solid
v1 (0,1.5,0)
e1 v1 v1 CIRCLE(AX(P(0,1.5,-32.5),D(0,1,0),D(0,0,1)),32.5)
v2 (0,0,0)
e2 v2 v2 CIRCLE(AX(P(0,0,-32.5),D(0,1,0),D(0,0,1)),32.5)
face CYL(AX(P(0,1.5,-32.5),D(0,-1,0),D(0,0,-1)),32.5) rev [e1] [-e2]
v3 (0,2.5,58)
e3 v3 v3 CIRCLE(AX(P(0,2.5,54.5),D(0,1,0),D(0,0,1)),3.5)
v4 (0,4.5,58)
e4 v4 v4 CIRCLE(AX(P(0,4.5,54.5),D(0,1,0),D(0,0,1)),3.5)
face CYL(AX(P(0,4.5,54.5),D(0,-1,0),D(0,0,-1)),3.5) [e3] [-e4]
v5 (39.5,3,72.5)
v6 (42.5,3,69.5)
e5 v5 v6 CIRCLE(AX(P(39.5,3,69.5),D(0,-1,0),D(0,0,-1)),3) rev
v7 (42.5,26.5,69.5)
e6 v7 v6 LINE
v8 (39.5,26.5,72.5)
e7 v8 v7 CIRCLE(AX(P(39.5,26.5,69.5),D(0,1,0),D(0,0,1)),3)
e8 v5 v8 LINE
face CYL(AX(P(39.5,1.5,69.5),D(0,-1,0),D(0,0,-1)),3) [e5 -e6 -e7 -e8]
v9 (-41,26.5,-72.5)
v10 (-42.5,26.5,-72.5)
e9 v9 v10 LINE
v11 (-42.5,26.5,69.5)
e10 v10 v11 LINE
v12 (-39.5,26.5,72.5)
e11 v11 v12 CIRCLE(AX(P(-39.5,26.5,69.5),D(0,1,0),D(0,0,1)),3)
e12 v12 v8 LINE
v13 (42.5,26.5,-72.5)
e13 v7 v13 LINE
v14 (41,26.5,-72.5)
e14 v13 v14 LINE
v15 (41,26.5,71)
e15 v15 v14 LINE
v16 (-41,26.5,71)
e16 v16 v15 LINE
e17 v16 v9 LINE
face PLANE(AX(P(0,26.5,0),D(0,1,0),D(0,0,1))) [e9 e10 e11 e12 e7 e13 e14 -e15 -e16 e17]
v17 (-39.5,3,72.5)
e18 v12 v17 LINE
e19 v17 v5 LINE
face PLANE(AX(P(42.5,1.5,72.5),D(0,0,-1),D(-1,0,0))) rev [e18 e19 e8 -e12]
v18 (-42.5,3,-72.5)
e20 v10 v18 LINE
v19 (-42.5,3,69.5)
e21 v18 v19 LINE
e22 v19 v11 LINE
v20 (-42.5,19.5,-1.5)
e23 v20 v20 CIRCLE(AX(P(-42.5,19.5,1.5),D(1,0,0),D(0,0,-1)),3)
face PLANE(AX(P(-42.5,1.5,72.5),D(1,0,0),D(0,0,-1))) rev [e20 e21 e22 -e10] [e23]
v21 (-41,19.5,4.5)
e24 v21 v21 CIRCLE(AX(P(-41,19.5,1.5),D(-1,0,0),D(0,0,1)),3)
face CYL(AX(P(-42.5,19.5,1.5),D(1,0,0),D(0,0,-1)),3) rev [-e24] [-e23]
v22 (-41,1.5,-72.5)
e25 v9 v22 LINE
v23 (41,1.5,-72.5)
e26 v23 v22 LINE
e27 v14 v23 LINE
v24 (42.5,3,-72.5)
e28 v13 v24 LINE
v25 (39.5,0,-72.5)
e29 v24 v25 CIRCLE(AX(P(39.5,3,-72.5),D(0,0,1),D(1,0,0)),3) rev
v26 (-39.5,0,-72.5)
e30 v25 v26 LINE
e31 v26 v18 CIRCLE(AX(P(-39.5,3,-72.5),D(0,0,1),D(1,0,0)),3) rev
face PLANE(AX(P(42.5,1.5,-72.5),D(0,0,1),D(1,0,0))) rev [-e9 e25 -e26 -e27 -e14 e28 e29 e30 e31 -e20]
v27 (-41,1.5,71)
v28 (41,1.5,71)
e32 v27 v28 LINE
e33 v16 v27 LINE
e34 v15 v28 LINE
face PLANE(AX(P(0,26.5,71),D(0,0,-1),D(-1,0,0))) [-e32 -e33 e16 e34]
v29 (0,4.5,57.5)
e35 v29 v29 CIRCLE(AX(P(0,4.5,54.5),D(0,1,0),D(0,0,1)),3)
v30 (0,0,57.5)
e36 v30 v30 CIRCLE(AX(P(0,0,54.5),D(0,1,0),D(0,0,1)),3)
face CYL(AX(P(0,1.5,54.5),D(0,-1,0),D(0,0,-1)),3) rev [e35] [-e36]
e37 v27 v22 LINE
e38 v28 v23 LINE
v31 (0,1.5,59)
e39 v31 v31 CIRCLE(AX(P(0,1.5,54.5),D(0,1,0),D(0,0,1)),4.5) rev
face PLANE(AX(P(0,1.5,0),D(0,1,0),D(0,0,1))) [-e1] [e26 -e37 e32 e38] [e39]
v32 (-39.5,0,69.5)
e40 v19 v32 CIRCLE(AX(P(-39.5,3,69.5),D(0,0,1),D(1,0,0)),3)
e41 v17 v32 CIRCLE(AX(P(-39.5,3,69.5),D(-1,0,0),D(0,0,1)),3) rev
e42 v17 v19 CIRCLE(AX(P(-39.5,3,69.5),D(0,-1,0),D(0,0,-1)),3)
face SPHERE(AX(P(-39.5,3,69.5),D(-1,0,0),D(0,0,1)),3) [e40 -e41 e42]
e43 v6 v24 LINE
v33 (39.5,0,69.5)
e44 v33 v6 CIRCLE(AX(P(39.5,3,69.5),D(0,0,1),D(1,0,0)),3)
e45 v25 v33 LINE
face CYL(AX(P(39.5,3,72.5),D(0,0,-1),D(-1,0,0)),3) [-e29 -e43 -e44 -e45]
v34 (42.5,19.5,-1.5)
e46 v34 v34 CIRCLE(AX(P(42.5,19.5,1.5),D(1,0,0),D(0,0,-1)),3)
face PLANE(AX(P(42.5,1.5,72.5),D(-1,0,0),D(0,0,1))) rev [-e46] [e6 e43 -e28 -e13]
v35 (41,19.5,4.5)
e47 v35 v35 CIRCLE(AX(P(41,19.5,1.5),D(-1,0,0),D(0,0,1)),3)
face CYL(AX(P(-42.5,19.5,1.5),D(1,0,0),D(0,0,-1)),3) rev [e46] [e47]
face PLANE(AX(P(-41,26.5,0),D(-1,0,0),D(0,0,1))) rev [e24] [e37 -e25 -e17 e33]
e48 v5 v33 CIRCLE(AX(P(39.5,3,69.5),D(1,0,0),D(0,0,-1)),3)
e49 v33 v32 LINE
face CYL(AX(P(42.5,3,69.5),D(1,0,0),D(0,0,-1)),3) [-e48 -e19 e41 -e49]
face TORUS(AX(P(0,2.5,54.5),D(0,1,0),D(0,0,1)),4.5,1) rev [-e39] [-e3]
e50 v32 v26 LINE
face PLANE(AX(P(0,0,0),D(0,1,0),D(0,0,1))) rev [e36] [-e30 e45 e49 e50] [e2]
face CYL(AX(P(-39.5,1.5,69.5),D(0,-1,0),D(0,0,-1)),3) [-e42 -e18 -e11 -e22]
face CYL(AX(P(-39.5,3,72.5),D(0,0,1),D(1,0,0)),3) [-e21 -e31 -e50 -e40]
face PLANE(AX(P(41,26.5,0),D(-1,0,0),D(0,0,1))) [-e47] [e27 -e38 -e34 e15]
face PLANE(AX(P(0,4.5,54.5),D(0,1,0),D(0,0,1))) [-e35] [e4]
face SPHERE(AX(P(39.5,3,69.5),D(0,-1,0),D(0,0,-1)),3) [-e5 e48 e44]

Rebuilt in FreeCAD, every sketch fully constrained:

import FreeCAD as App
import Part
import Sketcher
Q = App.Units.Quantity


def edges_at(feature, points):
    """Names of the edges that pass closest to the given points."""
    edges = feature.Shape.Edges
    near = lambda p: min(range(len(edges)), key=lambda i: edges[i].distToShape(Part.Vertex(*p))[0])
    return sorted({f"Edge{near(p) + 1}" for p in points})

doc = App.newDocument("Part")
body = doc.addObject("PartDesign::Body", "Body")

# Sketch on XZ plane
sketch1 = body.newObject("Sketcher::SketchObject", "Sketch")
sketch1.AttachmentSupport = (doc.getObject("XZ_Plane"), [""])
sketch1.MapMode = "FlatFace"
sketch1.addGeometry(Part.LineSegment(App.Vector(-42.5, -72.5, 0), App.Vector(-42.5, 72.5, 0)), False)
sketch1.addGeometry(Part.LineSegment(App.Vector(-42.5, 72.5, 0), App.Vector(42.5, 72.5, 0)), False)
sketch1.addGeometry(Part.LineSegment(App.Vector(42.5, 72.5, 0), App.Vector(42.5, -72.5, 0)), False)
sketch1.addGeometry(Part.LineSegment(App.Vector(42.5, -72.5, 0), App.Vector(-42.5, -72.5, 0)), False)
sketch1.addGeometry(Part.Circle(App.Vector(0, 54.5, 0), App.Vector(0, 0, 1), 3), False)
sketch1.addGeometry(Part.Circle(App.Vector(0, -32.5, 0), App.Vector(0, 0, 1), 32.5), False)
sketch1.addConstraint(Sketcher.Constraint("Coincident", 0, 2, 1, 1))
sketch1.addConstraint(Sketcher.Constraint("Coincident", 1, 2, 2, 1))
sketch1.addConstraint(Sketcher.Constraint("Coincident", 2, 2, 3, 1))
sketch1.addConstraint(Sketcher.Constraint("Coincident", 3, 2, 0, 1))
sketch1.addConstraint(Sketcher.Constraint("Vertical", 0))
sketch1.addConstraint(Sketcher.Constraint("Horizontal", 1))
sketch1.addConstraint(Sketcher.Constraint("Vertical", 2))
sketch1.addConstraint(Sketcher.Constraint("Horizontal", 3))
sketch1.addConstraint(Sketcher.Constraint("Symmetric", 0, 2, 2, 2, -1, 1))
sketch1.addConstraint(Sketcher.Constraint("PointOnObject", 4, 3, -2))
sketch1.addConstraint(Sketcher.Constraint("PointOnObject", 5, 3, -2))
sketch1.addConstraint(Sketcher.Constraint("Diameter", 4, Q("6 mm")))
sketch1.addConstraint(Sketcher.Constraint("Diameter", 5, Q("65 mm")))
sketch1.addConstraint(Sketcher.Constraint("DistanceX", 1, 1, 1, 2, Q("85 mm")))
sketch1.addConstraint(Sketcher.Constraint("DistanceY", 0, 1, 0, 2, Q("145 mm")))
sketch1.addConstraint(Sketcher.Constraint("DistanceY", 5, 3, 4, 3, Q("87 mm")))
sketch1.addConstraint(Sketcher.Constraint("DistanceY", 4, 3, 0, 2, Q("18 mm")))
pad1 = body.newObject("PartDesign::Pad", "Pad")
pad1.Profile = sketch1
pad1.Length = 1.5
pad1.Reversed = True

# Sketch on XZ plane
sketch2 = body.newObject("Sketcher::SketchObject", "Sketch001")
sketch2.AttachmentSupport = (doc.getObject("XZ_Plane"), [""])
sketch2.MapMode = "FlatFace"
sketch2.AttachmentOffset = App.Placement(App.Vector(0, 0, -1.5), App.Rotation())
sketch2.addGeometry(Part.LineSegment(App.Vector(-42.5, -72.5, 0), App.Vector(-42.5, 72.5, 0)), False)
sketch2.addGeometry(Part.LineSegment(App.Vector(-42.5, 72.5, 0), App.Vector(42.5, 72.5, 0)), False)
sketch2.addGeometry(Part.LineSegment(App.Vector(42.5, 72.5, 0), App.Vector(42.5, -72.5, 0)), False)
sketch2.addGeometry(Part.LineSegment(App.Vector(42.5, -72.5, 0), App.Vector(41, -72.5, 0)), False)
sketch2.addGeometry(Part.LineSegment(App.Vector(41, -72.5, 0), App.Vector(41, 71, 0)), False)
sketch2.addGeometry(Part.LineSegment(App.Vector(41, 71, 0), App.Vector(-41, 71, 0)), False)
sketch2.addGeometry(Part.LineSegment(App.Vector(-41, 71, 0), App.Vector(-41, -72.5, 0)), False)
sketch2.addGeometry(Part.LineSegment(App.Vector(-41, -72.5, 0), App.Vector(-42.5, -72.5, 0)), False)
sketch2.addConstraint(Sketcher.Constraint("Coincident", 0, 2, 1, 1))
sketch2.addConstraint(Sketcher.Constraint("Coincident", 1, 2, 2, 1))
sketch2.addConstraint(Sketcher.Constraint("Coincident", 2, 2, 3, 1))
sketch2.addConstraint(Sketcher.Constraint("Coincident", 3, 2, 4, 1))
sketch2.addConstraint(Sketcher.Constraint("Coincident", 4, 2, 5, 1))
sketch2.addConstraint(Sketcher.Constraint("Coincident", 5, 2, 6, 1))
sketch2.addConstraint(Sketcher.Constraint("Coincident", 6, 2, 7, 1))
sketch2.addConstraint(Sketcher.Constraint("Coincident", 7, 2, 0, 1))
sketch2.addConstraint(Sketcher.Constraint("Vertical", 0))
sketch2.addConstraint(Sketcher.Constraint("Horizontal", 1))
sketch2.addConstraint(Sketcher.Constraint("Vertical", 2))
sketch2.addConstraint(Sketcher.Constraint("Horizontal", 3))
sketch2.addConstraint(Sketcher.Constraint("Vertical", 4))
sketch2.addConstraint(Sketcher.Constraint("Horizontal", 5))
sketch2.addConstraint(Sketcher.Constraint("Vertical", 6))
sketch2.addConstraint(Sketcher.Constraint("Horizontal", 7))
sketch2.addConstraint(Sketcher.Constraint("Symmetric", 0, 2, 2, 2, -1, 1))
sketch2.addConstraint(Sketcher.Constraint("Symmetric", 3, 2, 6, 2, -2))
sketch2.addConstraint(Sketcher.Constraint("DistanceX", 1, 1, 1, 2, Q("85 mm")))
sketch2.addConstraint(Sketcher.Constraint("DistanceX", 5, 2, 5, 1, Q("82 mm")))
sketch2.addConstraint(Sketcher.Constraint("DistanceY", 0, 1, 0, 2, Q("145 mm")))
sketch2.addConstraint(Sketcher.Constraint("DistanceY", 4, 1, 4, 2, Q("143.5 mm")))
pad2 = body.newObject("PartDesign::Pad", "Pad001")
pad2.Profile = sketch2
pad2.Length = 25
pad2.Reversed = True

# Sketch on YZ plane
sketch3 = body.newObject("Sketcher::SketchObject", "Sketch002")
sketch3.AttachmentSupport = (doc.getObject("YZ_Plane"), [""])
sketch3.MapMode = "FlatFace"
sketch3.addGeometry(Part.Circle(App.Vector(19.5, 1.5, 0), App.Vector(0, 0, 1), 3), False)
sketch3.addConstraint(Sketcher.Constraint("Diameter", 0, Q("6 mm")))
sketch3.addConstraint(Sketcher.Constraint("DistanceX", -1, 1, 0, 3, Q("19.5 mm")))
sketch3.addConstraint(Sketcher.Constraint("DistanceY", -1, 1, 0, 3, Q("1.5 mm")))
pocket1 = body.newObject("PartDesign::Pocket", "Pocket")
pocket1.Profile = sketch3
pocket1.Type = "ThroughAll"
pocket1.Midplane = True
doc.recompute()

fillet = body.newObject("PartDesign::Fillet", "Fillet")
fillet.Base = (pocket1, edges_at(pocket1, [
    (42.5, 0, 0),
    (0, 0, 72.5),
    (-42.5, 0, 0),
    (42.5, 13.25, 72.5),
    (-42.5, 13.25, 72.5),
]))
fillet.Radius = 3

# Sketch on XZ plane
sketch4 = body.newObject("Sketcher::SketchObject", "Sketch003")
sketch4.AttachmentSupport = (doc.getObject("XZ_Plane"), [""])
sketch4.MapMode = "FlatFace"
sketch4.AttachmentOffset = App.Placement(App.Vector(0, 0, -1.5), App.Rotation())
sketch4.addGeometry(Part.Circle(App.Vector(0, 54.5, 0), App.Vector(0, 0, 1), 3.5), False)
sketch4.addGeometry(Part.Circle(App.Vector(0, 54.5, 0), App.Vector(0, 0, 1), 3), False)
sketch4.addConstraint(Sketcher.Constraint("Coincident", 1, 3, 0, 3))
sketch4.addConstraint(Sketcher.Constraint("PointOnObject", 0, 3, -2))
sketch4.addConstraint(Sketcher.Constraint("Diameter", 0, Q("7 mm")))
sketch4.addConstraint(Sketcher.Constraint("Diameter", 1, Q("6 mm")))
sketch4.addConstraint(Sketcher.Constraint("DistanceY", -1, 1, 0, 3, Q("54.5 mm")))
pad3 = body.newObject("PartDesign::Pad", "Pad002")
pad3.Profile = sketch4
pad3.Length = 3
pad3.Reversed = True
doc.recompute()

fillet2 = body.newObject("PartDesign::Fillet", "Fillet001")
fillet2.Base = (pad3, edges_at(pad3, [(0, 1.5, 51)]))
fillet2.Radius = 1

doc.recompute()
